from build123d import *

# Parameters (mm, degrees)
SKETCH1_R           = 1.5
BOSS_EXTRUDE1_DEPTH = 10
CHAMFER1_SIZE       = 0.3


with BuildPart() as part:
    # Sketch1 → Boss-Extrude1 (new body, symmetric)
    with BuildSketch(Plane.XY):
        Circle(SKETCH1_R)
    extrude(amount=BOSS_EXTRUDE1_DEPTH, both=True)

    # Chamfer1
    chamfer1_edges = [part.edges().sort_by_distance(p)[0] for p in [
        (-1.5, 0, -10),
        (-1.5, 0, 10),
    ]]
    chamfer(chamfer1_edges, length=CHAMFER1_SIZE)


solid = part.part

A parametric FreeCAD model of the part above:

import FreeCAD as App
import Part
import Sketcher

V = App.Vector
Q = App.Units.Quantity


def edges_at(feature, points):
    """Names of the edges that pass closest to the given points."""
    edges = feature.Shape.Edges
    near = lambda p: min(range(len(edges)), key=lambda i: edges[i].distToShape(Part.Vertex(*p))[0])
    return sorted({f"Edge{near(p) + 1}" for p in points})

doc = App.newDocument("Part")
body = doc.addObject("PartDesign::Body", "Body")

# Sketch on XY plane
sketch1 = body.newObject("Sketcher::SketchObject", "Sketch")
sketch1.AttachmentSupport = (doc.getObject("XY_Plane"), [""])
sketch1.MapMode = "FlatFace"
sketch1.addGeometry(Part.Circle(V(0, 0, 0), V(0, 0, 1), 1.5), False)
sketch1.addConstraint(Sketcher.Constraint("Coincident", 0, 3, -1, 1))
sketch1.addConstraint(Sketcher.Constraint("Diameter", 0, Q("3 mm")))
pad1 = body.newObject("PartDesign::Pad", "Pad")
pad1.Profile = sketch1
pad1.Length = 20
pad1.Midplane = True
doc.recompute()

chamfer = body.newObject("PartDesign::Chamfer", "Chamfer")
chamfer.Base = (pad1, edges_at(pad1, [(-1.5, 0, -10), (-1.5, 0, 10)]))
chamfer.Size = 0.3

doc.recompute()
